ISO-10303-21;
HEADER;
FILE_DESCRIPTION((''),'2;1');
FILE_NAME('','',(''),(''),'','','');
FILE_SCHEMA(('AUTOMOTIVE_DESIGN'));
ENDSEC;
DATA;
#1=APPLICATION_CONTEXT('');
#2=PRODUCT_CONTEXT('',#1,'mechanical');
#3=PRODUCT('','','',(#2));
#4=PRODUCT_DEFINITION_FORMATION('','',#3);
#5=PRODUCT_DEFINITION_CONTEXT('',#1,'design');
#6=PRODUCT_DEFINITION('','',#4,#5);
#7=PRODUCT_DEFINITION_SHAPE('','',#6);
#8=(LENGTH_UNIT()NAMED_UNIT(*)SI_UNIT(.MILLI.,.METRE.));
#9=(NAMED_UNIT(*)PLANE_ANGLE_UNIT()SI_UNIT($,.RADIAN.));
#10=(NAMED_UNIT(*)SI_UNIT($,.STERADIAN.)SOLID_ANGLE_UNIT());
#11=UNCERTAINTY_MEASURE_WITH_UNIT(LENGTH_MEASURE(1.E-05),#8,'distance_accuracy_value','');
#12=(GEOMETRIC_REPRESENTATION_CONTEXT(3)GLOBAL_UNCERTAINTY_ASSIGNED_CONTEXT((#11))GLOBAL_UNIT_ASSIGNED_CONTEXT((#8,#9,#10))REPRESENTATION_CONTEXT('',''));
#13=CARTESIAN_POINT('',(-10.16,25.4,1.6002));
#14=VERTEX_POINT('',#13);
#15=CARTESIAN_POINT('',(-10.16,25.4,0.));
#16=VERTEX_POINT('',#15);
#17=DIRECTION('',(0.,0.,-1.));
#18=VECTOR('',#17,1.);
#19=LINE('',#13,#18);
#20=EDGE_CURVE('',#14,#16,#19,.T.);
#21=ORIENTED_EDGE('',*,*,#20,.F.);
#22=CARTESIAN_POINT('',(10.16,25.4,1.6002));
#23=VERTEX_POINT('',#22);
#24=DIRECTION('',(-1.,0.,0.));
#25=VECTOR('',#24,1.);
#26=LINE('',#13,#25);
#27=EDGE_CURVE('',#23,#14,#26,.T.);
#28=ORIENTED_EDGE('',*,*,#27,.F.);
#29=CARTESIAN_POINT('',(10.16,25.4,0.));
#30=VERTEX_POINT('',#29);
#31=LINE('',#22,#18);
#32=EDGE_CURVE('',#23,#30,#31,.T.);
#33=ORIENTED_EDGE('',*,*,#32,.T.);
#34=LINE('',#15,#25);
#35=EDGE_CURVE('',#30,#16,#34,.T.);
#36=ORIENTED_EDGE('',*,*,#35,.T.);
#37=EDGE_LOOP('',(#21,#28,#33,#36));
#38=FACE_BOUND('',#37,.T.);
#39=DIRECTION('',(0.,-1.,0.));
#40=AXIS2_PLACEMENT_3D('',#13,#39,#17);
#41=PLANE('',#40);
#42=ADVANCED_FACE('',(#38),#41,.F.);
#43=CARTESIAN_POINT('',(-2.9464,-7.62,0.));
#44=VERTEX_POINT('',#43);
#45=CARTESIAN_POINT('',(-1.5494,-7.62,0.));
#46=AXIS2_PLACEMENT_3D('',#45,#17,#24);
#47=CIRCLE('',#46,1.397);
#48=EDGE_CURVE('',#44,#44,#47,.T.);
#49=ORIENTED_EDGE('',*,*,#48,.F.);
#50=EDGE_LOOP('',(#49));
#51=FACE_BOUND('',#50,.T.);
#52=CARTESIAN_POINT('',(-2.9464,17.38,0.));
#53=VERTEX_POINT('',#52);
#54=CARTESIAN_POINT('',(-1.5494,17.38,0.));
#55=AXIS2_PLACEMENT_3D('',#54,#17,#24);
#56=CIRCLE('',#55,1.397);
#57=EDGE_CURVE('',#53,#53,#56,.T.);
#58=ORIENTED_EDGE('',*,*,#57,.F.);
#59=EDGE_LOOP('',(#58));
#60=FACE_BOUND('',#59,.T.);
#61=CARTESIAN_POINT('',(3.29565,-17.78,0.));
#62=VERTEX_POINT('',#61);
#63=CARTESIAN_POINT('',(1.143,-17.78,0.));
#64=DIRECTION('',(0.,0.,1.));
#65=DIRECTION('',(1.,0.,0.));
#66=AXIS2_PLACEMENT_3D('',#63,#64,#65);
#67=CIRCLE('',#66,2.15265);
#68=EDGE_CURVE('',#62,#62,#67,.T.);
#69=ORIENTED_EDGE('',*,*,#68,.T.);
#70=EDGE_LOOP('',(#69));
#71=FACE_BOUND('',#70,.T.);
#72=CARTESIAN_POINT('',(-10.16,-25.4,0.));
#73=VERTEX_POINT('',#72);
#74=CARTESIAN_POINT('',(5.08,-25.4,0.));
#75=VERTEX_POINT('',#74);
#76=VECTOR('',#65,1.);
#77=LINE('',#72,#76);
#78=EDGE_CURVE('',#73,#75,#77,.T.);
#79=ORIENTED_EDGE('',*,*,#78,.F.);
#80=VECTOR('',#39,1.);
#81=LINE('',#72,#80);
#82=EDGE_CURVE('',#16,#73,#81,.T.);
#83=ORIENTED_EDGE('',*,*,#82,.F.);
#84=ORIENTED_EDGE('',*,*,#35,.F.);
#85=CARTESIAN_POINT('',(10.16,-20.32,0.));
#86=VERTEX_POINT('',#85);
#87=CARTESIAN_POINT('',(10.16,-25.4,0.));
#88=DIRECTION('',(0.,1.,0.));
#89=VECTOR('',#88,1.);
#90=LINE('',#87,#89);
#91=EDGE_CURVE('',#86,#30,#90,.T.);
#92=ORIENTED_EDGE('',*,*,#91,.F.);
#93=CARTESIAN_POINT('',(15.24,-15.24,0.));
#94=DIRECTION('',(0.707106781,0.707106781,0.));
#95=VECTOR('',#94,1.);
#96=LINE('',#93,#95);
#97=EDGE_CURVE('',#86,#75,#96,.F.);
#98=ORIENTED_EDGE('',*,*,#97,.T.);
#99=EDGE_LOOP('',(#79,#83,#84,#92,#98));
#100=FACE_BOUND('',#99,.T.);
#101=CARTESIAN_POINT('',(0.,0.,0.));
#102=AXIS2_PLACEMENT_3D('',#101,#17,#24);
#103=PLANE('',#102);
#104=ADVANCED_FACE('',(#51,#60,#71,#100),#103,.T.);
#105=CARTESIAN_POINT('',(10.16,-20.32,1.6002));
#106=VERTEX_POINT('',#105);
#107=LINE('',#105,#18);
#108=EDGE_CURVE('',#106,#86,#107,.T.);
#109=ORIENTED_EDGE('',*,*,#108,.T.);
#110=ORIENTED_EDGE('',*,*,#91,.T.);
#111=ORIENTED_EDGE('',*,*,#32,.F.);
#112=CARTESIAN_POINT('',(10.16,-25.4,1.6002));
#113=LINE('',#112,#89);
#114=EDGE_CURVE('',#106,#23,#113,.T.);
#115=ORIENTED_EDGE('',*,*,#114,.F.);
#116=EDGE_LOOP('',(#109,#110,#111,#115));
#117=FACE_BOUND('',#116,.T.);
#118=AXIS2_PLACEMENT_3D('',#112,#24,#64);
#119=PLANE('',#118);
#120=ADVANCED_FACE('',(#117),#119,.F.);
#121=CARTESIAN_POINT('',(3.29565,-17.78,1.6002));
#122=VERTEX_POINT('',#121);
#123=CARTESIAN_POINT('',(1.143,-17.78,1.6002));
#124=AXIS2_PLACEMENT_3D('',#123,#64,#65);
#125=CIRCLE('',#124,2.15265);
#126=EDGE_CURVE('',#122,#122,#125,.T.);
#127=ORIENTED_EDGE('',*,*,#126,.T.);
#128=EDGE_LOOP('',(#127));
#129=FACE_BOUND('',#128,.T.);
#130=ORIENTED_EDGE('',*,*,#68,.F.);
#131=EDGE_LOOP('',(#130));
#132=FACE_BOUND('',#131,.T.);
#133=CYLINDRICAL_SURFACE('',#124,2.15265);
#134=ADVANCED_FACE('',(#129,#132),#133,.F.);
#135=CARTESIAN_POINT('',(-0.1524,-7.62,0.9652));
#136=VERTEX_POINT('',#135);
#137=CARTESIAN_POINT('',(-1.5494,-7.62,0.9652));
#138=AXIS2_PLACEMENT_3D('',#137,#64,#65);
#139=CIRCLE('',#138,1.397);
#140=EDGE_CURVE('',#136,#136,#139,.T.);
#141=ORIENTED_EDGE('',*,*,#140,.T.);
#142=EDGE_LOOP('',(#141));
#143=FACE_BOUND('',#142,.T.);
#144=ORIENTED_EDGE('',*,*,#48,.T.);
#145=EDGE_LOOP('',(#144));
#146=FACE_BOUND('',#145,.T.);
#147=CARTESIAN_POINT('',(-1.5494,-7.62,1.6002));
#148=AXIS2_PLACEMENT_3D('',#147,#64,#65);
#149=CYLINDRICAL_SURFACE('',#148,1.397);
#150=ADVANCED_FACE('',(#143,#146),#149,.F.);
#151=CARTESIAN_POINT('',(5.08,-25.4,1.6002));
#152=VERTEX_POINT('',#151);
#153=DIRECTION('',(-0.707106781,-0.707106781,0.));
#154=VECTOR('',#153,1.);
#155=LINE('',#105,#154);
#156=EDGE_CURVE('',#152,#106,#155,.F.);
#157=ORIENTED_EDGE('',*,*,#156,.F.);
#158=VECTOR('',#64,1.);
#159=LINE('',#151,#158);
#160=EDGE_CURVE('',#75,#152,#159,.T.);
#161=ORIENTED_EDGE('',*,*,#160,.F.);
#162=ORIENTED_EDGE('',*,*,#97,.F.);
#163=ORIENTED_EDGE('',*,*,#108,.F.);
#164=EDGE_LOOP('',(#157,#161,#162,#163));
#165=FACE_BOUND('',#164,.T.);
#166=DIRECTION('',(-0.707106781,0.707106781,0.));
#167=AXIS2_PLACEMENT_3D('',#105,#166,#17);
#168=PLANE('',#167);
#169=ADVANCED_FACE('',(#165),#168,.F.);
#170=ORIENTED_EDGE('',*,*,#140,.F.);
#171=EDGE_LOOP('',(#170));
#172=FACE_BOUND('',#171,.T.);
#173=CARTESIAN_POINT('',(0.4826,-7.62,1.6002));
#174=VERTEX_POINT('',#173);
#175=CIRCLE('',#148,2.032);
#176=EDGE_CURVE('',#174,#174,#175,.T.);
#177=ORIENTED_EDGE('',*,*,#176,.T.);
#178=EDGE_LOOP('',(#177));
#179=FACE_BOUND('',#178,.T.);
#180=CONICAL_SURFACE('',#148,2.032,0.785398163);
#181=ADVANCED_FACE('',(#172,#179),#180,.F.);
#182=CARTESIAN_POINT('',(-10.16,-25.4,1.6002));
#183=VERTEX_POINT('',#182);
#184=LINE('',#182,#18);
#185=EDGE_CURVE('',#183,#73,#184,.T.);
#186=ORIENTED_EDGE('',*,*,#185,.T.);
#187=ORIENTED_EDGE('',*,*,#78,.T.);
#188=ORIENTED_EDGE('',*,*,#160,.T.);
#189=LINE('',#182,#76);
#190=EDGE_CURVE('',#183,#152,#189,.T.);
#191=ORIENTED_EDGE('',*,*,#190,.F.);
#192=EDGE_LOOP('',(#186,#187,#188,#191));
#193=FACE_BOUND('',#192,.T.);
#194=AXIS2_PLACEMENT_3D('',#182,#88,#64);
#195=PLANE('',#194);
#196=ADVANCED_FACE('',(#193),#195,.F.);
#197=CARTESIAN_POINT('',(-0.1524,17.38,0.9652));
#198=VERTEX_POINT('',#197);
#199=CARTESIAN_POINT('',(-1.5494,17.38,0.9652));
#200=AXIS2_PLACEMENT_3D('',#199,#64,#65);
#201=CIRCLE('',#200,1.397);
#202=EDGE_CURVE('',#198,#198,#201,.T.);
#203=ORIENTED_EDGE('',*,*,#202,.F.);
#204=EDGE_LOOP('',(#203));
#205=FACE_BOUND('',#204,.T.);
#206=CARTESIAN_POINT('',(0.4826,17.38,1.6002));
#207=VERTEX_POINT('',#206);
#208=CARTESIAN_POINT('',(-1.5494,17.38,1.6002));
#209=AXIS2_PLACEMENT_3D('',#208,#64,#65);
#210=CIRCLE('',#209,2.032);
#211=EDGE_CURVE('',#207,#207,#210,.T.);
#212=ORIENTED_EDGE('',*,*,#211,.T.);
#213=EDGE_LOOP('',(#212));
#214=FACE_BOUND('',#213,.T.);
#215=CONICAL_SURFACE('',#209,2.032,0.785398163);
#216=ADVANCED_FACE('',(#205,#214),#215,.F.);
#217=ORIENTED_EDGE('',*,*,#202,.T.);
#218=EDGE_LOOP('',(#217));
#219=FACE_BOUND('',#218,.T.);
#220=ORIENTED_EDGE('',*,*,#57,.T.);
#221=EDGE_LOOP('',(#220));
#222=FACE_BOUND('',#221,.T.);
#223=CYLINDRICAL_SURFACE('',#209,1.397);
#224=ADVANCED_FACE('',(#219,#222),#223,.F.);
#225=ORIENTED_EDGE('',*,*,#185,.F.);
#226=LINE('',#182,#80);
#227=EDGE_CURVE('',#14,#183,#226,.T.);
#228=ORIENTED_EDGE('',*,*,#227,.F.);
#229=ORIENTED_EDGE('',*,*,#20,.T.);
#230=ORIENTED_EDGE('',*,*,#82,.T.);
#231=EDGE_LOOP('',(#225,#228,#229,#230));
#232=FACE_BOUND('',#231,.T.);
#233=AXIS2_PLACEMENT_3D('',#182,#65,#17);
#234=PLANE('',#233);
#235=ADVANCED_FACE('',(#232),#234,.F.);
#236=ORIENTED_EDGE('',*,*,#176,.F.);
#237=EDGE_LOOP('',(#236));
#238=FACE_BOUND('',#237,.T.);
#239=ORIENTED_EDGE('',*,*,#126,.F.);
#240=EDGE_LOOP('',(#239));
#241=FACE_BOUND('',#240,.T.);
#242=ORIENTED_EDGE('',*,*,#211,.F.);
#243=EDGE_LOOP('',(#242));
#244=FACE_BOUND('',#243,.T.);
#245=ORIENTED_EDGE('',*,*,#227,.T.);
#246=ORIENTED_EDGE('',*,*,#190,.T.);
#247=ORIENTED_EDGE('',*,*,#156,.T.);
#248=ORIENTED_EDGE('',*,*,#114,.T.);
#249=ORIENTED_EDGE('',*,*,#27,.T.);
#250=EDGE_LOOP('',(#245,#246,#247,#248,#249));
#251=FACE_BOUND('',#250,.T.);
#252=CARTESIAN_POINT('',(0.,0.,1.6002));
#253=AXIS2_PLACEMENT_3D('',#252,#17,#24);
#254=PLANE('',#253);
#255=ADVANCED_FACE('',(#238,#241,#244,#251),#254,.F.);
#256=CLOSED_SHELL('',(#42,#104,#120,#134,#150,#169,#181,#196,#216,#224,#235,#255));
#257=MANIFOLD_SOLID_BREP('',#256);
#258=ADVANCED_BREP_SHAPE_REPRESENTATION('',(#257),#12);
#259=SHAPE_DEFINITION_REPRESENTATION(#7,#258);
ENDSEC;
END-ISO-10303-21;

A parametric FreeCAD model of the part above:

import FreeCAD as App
import Part
import Sketcher
from FreeCAD import Vector
Q = App.Units.Quantity


def edges_at(feature, points):
    """Names of the edges that pass closest to the given points."""
    edges = feature.Shape.Edges
    near = lambda p: min(range(len(edges)), key=lambda i: edges[i].distToShape(Part.Vertex(*p))[0])
    return sorted({f"Edge{near(p) + 1}" for p in points})

doc = App.newDocument("Part")
params = doc.addObject("Spreadsheet::Sheet", "Params")
for row, (alias, value) in enumerate([
    ("sketch1_height", "2 in"),
    ("sketch1_width", "0.8 in"),
    ("pad1_length", "0.063 in"),
    ("chamfer_size", "0.2 in"),
    ("sketch2_diameter", "0.11 in"),
    ("hole_diameter", "0.11 in"),
    ("hole_depth", "0.45 in"),
    ("hole_csink_diameter", "0.16 in"),
    ("hole2_diameter", "0.1695 in"),
], start=1):
    params.set(f"A{row}", alias)
    params.set(f"B{row}", "=" + value)
    params.setAlias(f"B{row}", alias)

body = doc.addObject("PartDesign::Body", "Body")

# Sketch on XY plane
sketch1 = body.newObject("Sketcher::SketchObject", "Sketch")
sketch1.AttachmentSupport = (doc.getObject("XY_Plane"), [""])
sketch1.MapMode = "FlatFace"
sketch1.addGeometry([
    Part.LineSegment(Vector(-10.16, 25.4, 0), Vector(-10.16, -25.4, 0)),
    Part.LineSegment(Vector(-10.16, -25.4, 0), Vector(10.16, -25.4, 0)),
    Part.LineSegment(Vector(10.16, -25.4, 0), Vector(10.16, 25.4, 0)),
    Part.LineSegment(Vector(10.16, 25.4, 0), Vector(-10.16, 25.4, 0)),
], False)
sketch1.addConstraint([
    Sketcher.Constraint("Coincident", 0, 2, 1, 1),
    Sketcher.Constraint("Coincident", 1, 2, 2, 1),
    Sketcher.Constraint("Coincident", 2, 2, 3, 1),
    Sketcher.Constraint("Coincident", 3, 2, 0, 1),
    Sketcher.Constraint("Vertical", 0),
    Sketcher.Constraint("Horizontal", 1),
    Sketcher.Constraint("Vertical", 2),
    Sketcher.Constraint("Horizontal", 3),
    Sketcher.Constraint("Symmetric", 0, 2, 2, 2, -1, 1),
    Sketcher.Constraint("DistanceY", 0, 2, 0, 1, Q("2 in")),
    Sketcher.Constraint("DistanceX", 1, 1, 1, 2, Q("0.8 in")),
])
sketch1.setExpression("Constraints[9]", "Params.sketch1_height")
sketch1.setExpression("Constraints[10]", "Params.sketch1_width")
pad1 = body.newObject("PartDesign::Pad", "Pad")
pad1.Profile = sketch1
pad1.setExpression("Length", "Params.pad1_length")
doc.recompute()

chamfer = body.newObject("PartDesign::Chamfer", "Chamfer")
chamfer.Base = (pad1, edges_at(pad1, [(10.16, -25.4, 0.8)]))
chamfer.setExpression("Size", "Params.chamfer_size")

# Sketch on XY plane
sketch2 = body.newObject("Sketcher::SketchObject", "Sketch001")
sketch2.AttachmentSupport = (doc.getObject("XY_Plane"), [""])
sketch2.MapMode = "FlatFace"
sketch2.AttachmentOffset = App.Placement(Vector(0, 0, 0.063 * 25.4), App.Rotation())
sketch2.addGeometry([
    Part.Circle(Vector(-1.5494, -7.62, 0), Vector(0, 0, 1), 1.397),
    Part.Circle(Vector(-1.5494, 17.38, 0), Vector(0, 0, 1), 1.397),
], False)
sketch2.addConstraint([
    Sketcher.Constraint("Equal", 0, 1),
    Sketcher.Constraint("Vertical", 0, 3, 1, 3),
    Sketcher.Constraint("Diameter", 0, Q("0.11 in")),
    Sketcher.Constraint("DistanceY", 0, 3, -1, 1, Q("0.3 in")),
    Sketcher.Constraint("DistanceX", 0, 3, -1, 1, Q("0.061 in")),
    Sketcher.Constraint("DistanceY", -1, 1, 1, 3, 17.38),
])
sketch2.setExpression("Constraints[2]", "Params.sketch2_diameter")
doc.recompute()
hole = body.newObject("PartDesign::Hole", "Hole")
hole.Profile = sketch2
hole.ThreadType = "None"
hole.setExpression("Diameter", "Params.hole_diameter")
hole.DepthType = "Dimension"
hole.setExpression("Depth", "Params.hole_depth")
hole.DrillPoint = "Angled"
hole.DrillPointAngle = 118
hole.HoleCutType = "Countersink"
hole.setExpression("HoleCutDiameter", "Params.hole_csink_diameter")
hole.HoleCutCountersinkAngle = 90

# Sketch on XY plane
sketch3 = body.newObject("Sketcher::SketchObject", "Sketch002")
sketch3.AttachmentSupport = (doc.getObject("XY_Plane"), [""])
sketch3.MapMode = "FlatFace"
sketch3.AttachmentOffset = App.Placement(Vector(0, 0, 0.063 * 25.4), App.Rotation())
sketch3.addGeometry(Part.Circle(Vector(1.143, -17.78, 0), Vector(0, 0, 1), 2.15265), False)
sketch3.addConstraint([
    Sketcher.Constraint("Diameter", 0, Q("0.1695 in")),
    Sketcher.Constraint("DistanceY", 0, 3, -1, 1, Q("0.7 in")),
    Sketcher.Constraint("DistanceX", -1, 1, 0, 3, Q("0.045 in")),
])
doc.recompute()
hole2 = body.newObject("PartDesign::Hole", "Hole001")
hole2.Profile = sketch3
hole2.ThreadType = "None"
hole2.setExpression("Diameter", "Params.hole2_diameter")
hole2.DepthType = "ThroughAll"

doc.recompute()
